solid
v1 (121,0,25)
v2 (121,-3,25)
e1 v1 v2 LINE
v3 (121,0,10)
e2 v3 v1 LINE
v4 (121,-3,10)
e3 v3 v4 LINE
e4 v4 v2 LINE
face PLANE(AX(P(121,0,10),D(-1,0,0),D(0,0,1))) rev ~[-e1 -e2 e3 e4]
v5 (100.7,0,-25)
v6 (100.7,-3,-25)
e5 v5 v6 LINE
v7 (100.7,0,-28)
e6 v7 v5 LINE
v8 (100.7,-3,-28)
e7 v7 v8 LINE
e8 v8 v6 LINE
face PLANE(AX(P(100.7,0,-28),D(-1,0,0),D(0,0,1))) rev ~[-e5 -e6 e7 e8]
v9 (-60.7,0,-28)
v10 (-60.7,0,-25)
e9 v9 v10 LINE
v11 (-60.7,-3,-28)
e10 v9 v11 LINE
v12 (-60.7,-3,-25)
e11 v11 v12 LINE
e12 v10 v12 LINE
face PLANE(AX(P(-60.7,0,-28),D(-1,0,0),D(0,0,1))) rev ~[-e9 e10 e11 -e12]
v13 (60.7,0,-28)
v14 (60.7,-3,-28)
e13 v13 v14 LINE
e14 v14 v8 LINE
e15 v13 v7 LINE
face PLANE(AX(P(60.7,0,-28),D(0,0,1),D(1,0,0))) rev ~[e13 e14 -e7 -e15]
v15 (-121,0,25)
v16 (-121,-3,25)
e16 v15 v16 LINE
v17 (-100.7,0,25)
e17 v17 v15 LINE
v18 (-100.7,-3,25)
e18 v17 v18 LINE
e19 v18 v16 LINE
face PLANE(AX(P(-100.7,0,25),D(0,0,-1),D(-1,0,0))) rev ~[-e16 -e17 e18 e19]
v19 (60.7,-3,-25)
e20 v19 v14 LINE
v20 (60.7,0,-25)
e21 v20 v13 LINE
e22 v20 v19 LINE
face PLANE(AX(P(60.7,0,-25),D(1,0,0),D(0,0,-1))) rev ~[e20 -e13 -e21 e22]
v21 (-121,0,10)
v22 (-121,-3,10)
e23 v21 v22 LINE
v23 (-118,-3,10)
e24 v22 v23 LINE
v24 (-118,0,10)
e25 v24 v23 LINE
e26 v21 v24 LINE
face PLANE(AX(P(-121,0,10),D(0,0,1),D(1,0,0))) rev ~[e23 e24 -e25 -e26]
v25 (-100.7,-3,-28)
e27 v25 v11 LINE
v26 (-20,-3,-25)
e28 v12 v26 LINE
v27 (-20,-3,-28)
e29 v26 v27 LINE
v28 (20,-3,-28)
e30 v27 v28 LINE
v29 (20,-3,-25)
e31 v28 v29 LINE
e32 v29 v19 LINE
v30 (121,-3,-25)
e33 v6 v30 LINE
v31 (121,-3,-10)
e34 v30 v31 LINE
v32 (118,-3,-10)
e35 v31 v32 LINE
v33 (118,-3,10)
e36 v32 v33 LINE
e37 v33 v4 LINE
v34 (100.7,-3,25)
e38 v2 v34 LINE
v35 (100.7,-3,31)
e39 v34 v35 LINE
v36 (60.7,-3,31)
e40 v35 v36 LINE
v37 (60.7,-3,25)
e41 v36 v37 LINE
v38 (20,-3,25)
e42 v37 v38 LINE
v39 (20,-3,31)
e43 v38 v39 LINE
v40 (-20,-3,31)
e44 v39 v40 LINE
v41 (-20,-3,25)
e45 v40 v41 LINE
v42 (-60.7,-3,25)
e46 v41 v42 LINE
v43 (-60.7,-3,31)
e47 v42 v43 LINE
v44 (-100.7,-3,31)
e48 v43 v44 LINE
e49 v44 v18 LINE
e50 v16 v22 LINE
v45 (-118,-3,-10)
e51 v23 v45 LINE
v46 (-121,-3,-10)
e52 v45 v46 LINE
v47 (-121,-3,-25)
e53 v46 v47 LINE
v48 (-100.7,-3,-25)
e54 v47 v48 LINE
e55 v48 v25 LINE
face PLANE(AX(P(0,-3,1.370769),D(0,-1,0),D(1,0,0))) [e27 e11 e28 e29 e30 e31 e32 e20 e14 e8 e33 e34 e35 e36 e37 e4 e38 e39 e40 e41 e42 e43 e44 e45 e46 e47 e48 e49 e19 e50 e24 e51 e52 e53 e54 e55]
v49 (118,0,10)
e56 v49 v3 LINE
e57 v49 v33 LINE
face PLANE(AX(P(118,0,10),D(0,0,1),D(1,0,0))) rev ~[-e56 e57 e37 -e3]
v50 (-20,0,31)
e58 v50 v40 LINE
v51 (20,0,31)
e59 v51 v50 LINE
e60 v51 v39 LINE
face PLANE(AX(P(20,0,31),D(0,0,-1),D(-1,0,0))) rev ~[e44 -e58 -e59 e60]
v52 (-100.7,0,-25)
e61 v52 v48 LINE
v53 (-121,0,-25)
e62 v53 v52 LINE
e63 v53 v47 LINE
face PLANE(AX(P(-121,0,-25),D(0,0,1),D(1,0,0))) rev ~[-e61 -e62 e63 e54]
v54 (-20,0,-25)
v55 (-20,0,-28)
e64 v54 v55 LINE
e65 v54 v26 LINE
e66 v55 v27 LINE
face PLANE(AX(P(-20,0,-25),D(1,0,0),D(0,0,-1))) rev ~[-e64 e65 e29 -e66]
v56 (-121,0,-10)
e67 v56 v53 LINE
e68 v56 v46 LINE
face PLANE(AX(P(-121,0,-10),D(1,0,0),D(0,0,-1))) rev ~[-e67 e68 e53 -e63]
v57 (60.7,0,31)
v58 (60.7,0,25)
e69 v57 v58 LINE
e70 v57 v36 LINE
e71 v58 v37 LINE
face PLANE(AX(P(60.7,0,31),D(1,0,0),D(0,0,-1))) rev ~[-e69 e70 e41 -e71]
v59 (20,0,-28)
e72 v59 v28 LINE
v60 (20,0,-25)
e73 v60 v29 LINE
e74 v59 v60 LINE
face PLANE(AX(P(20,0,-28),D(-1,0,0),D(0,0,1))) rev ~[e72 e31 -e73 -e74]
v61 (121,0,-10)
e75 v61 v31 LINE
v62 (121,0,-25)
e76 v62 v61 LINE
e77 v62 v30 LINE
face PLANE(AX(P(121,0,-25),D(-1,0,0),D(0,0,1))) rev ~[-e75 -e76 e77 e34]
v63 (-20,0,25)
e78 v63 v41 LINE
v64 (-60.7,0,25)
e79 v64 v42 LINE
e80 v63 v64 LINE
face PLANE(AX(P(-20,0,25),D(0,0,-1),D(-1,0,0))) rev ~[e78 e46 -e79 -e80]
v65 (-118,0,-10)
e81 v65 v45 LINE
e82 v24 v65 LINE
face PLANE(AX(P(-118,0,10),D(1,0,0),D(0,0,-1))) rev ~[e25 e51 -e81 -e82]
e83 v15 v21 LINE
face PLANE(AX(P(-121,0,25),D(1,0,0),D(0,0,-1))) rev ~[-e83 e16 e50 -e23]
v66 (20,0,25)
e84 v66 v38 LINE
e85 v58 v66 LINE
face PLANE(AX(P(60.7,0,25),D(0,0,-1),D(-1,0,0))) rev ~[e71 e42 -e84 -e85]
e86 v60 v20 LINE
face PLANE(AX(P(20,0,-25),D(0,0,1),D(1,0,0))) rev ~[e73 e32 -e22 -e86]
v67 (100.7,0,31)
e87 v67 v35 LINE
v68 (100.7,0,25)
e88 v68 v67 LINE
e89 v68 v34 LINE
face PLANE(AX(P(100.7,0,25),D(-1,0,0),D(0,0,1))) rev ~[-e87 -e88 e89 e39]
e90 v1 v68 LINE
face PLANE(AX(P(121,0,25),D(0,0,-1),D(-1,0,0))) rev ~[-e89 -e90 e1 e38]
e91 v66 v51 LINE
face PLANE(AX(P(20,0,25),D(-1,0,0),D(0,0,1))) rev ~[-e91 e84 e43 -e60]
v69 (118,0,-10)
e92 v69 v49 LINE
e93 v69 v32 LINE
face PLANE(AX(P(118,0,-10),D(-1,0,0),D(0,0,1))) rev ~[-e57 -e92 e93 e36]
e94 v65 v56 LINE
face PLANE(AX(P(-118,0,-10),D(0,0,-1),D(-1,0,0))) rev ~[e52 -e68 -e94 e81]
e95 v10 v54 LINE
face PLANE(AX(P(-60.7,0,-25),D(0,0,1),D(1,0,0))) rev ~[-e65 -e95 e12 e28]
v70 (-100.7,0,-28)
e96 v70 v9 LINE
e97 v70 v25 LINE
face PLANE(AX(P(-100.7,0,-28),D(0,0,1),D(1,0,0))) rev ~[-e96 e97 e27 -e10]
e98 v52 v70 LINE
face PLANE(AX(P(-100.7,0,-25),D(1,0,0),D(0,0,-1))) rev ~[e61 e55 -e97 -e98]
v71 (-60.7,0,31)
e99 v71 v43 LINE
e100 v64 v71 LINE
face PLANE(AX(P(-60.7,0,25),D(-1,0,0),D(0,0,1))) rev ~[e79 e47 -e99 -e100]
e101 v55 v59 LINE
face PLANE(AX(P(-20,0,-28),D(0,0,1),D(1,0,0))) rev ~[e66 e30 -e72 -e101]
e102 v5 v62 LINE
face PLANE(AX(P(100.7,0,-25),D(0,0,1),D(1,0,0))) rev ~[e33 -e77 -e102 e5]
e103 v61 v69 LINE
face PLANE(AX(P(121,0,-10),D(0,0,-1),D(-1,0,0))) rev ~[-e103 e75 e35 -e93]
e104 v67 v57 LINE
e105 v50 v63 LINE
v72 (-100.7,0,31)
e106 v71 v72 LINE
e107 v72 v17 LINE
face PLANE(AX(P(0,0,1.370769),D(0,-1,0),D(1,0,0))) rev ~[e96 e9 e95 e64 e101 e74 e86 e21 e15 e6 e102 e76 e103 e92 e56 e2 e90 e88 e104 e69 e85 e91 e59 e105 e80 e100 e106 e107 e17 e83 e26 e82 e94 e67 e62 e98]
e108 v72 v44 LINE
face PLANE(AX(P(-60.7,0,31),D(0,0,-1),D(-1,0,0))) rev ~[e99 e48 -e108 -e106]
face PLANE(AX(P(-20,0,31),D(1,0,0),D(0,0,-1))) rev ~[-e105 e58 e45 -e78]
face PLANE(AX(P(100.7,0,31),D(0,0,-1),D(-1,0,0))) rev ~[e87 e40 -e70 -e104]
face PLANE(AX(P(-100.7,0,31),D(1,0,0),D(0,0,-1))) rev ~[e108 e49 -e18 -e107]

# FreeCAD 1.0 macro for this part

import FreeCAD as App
import Part
import Sketcher
Q = App.Units.Quantity


def add_polygon(sketch, points):
    """Adds a closed chain of lines whose ends are joined by coincident constraints."""
    first, n = sketch.GeometryCount, len(points)
    for a, b in zip(points, points[1:] + points[:1]):
        sketch.addGeometry(Part.LineSegment(App.Vector(*a, 0), App.Vector(*b, 0)), False)
    for i in range(n):
        sketch.addConstraint(Sketcher.Constraint("Coincident", first + i, 2, first + (i + 1) % n, 1))

doc = App.newDocument("Part")
body = doc.addObject("PartDesign::Body", "Body")

# Sketch on XZ plane
sketch1 = body.newObject("Sketcher::SketchObject", "Sketch")
sketch1.AttachmentSupport = (doc.getObject("XZ_Plane"), [""])
sketch1.MapMode = "FlatFace"
add_polygon(sketch1, [(100.7, -25), (121, -25), (121, -10), (118, -10), (118, 10), (121, 10), (121, 25), (100.7, 25), (100.7, 31), (60.7, 31), (60.7, 25), (20, 25), (20, 31), (-20, 31), (-20, 25), (-60.7, 25), (-60.7, 31), (-100.7, 31), (-100.7, 25), (-121, 25), (-121, 10), (-118, 10), (-118, -10), (-121, -10), (-121, -25), (-100.7, -25), (-100.7, -28), (-60.7, -28), (-60.7, -25), (-20, -25), (-20, -28), (20, -28), (20, -25), (60.7, -25), (60.7, -28), (100.7, -28)])  # lines 0-35
sketch1.addConstraint([
    Sketcher.Constraint("Horizontal", 0),
    Sketcher.Constraint("Vertical", 1),
    Sketcher.Constraint("Horizontal", 2),
    Sketcher.Constraint("Vertical", 3),
    Sketcher.Constraint("Horizontal", 4),
    Sketcher.Constraint("Vertical", 5),
    Sketcher.Constraint("Horizontal", 6),
    Sketcher.Constraint("Vertical", 7),
    Sketcher.Constraint("Horizontal", 8),
    Sketcher.Constraint("Vertical", 9),
    Sketcher.Constraint("Horizontal", 10),
    Sketcher.Constraint("Vertical", 11),
    Sketcher.Constraint("Horizontal", 12),
    Sketcher.Constraint("Vertical", 13),
    Sketcher.Constraint("Horizontal", 14),
    Sketcher.Constraint("Vertical", 15),
    Sketcher.Constraint("Horizontal", 16),
    Sketcher.Constraint("Vertical", 17),
    Sketcher.Constraint("Horizontal", 18),
    Sketcher.Constraint("Vertical", 19),
    Sketcher.Constraint("Horizontal", 20),
    Sketcher.Constraint("Vertical", 21),
    Sketcher.Constraint("Horizontal", 22),
    Sketcher.Constraint("Vertical", 23),
    Sketcher.Constraint("Horizontal", 24),
    Sketcher.Constraint("Vertical", 25),
    Sketcher.Constraint("Horizontal", 26),
    Sketcher.Constraint("Vertical", 27),
    Sketcher.Constraint("Horizontal", 28),
    Sketcher.Constraint("Vertical", 29),
    Sketcher.Constraint("Horizontal", 30),
    Sketcher.Constraint("Vertical", 31),
    Sketcher.Constraint("Horizontal", 32),
    Sketcher.Constraint("Vertical", 33),
    Sketcher.Constraint("Horizontal", 34),
    Sketcher.Constraint("Vertical", 35),
    Sketcher.Constraint("Symmetric", 0, 2, 18, 2, -1, 1),
    Sketcher.Constraint("Symmetric", 2, 2, 20, 2, -1, 1),
    Sketcher.Constraint("Symmetric", 4, 2, 22, 2, -1, 1),
    Sketcher.Constraint("Symmetric", 6, 2, 24, 2, -1, 1),
    Sketcher.Constraint("Symmetric", 9, 2, 27, 2, -1, 1),
    Sketcher.Constraint("Symmetric", 13, 2, 31, 2, -1, 1),
    Sketcher.Constraint("Symmetric", 10, 2, 13, 2, -2),
    Sketcher.Constraint("Symmetric", 8, 2, 15, 2, -2),
    Sketcher.Constraint("Symmetric", 6, 2, 17, 2, -2),
    Sketcher.Constraint("Symmetric", 4, 2, 19, 2, -2),
    Sketcher.Constraint("Symmetric", 26, 2, 33, 2, -2),
    Sketcher.Constraint("Horizontal", 6, 2, 9, 2),
    Sketcher.Constraint("Horizontal", 8, 2, 11, 2),
    Sketcher.Constraint("Horizontal", 26, 2, 29, 2),
    Sketcher.Constraint("Vertical", 13, 2, 28, 2),
    Sketcher.Constraint("Vertical", 7, 2, 34, 2),
    Sketcher.Constraint("Equal", 8, 12),
    Sketcher.Constraint("Equal", 22, 25),
    Sketcher.Constraint("DistanceX", 2, 2, 2, 1, Q("3 mm")),
    Sketcher.Constraint("DistanceX", 8, 2, 8, 1, Q("40 mm")),
    Sketcher.Constraint("DistanceY", 1, 1, 1, 2, Q("15 mm")),
    Sketcher.Constraint("DistanceY", 3, 1, 3, 2, Q("20 mm")),
    Sketcher.Constraint("DistanceY", 7, 1, 7, 2, Q("6 mm")),
    Sketcher.Constraint("DistanceX", 0, 1, 0, 2, Q("20.3 mm")),
    Sketcher.Constraint("DistanceX", 10, 2, 10, 1, Q("40.7 mm")),
])
pad1 = body.newObject("PartDesign::Pad", "Pad")
pad1.Profile = sketch1
pad1.Length = 3

doc.recompute()
